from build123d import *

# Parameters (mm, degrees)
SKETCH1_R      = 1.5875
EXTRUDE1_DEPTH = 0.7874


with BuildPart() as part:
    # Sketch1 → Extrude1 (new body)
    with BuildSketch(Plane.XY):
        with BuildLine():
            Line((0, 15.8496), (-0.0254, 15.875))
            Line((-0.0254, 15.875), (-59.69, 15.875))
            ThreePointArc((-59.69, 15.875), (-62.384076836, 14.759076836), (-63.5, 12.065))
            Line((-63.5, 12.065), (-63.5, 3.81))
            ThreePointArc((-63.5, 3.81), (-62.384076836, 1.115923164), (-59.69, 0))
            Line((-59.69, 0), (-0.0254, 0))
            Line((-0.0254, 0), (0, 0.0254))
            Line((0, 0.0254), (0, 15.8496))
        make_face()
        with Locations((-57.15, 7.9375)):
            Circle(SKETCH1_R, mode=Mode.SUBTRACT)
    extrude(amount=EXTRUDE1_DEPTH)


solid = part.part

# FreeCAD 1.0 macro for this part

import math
import FreeCAD as App
import Part
import Sketcher
from FreeCAD import Vector
Q = App.Units.Quantity

doc = App.newDocument("Part")
params = doc.addObject("Spreadsheet::Sheet", "Params")
for row, (alias, value) in enumerate([
    ("sketch1_radius", "0.15 in"),
    ("sketch1_diameter", "0.125 in"),
    ("sketch1_width", "2.349 in"),
    ("sketch1_height", "0.325 in"),
    ("pad1_length", "0.031 in"),
], start=1):
    params.set(f"A{row}", alias)
    params.set(f"B{row}", "=" + value)
    params.setAlias(f"B{row}", alias)

body = doc.addObject("PartDesign::Body", "Body")

sketch1 = body.newObject("Sketcher::SketchObject", "Sketch")
sketch1.AttachmentSupport = (doc.getObject("XY_Plane"), [""])
sketch1.MapMode = "FlatFace"
sketch1.addGeometry([
    Part.LineSegment(Vector(0, 15.85, 0), Vector(-0.025, 15.875, 0)),
    Part.LineSegment(Vector(-0.025, 15.875, 0), Vector(-59.69, 15.875, 0)),
    Part.ArcOfCircle(Part.Circle(Vector(-59.69, 12.065, 0), Vector(0, 0, 1), 3.81), math.radians(90), math.radians(180)),
    Part.LineSegment(Vector(-63.5, 12.065, 0), Vector(-63.5, 3.81, 0)),
    Part.ArcOfCircle(Part.Circle(Vector(-59.69, 3.81, 0), Vector(0, 0, 1), 3.81), math.radians(-180), math.radians(-90)),
    Part.LineSegment(Vector(-59.69, 0, 0), Vector(-0.025, 0, 0)),
    Part.LineSegment(Vector(-0.025, 0, 0), Vector(0, 0.025, 0)),
    Part.LineSegment(Vector(0, 0.025, 0), Vector(0, 15.85, 0)),
    Part.Circle(Vector(-57.15, 7.938, 0), Vector(0, 0, 1), 1.587),
], False)
sketch1.addConstraint([
    Sketcher.Constraint("Coincident", 0, 2, 1, 1),
    Sketcher.Constraint("Tangent", 1, 2, 2, 1),
    Sketcher.Constraint("Tangent", 2, 2, 3, 1),
    Sketcher.Constraint("Tangent", 3, 2, 4, 1),
    Sketcher.Constraint("Tangent", 4, 2, 5, 1),
    Sketcher.Constraint("Coincident", 5, 2, 6, 1),
    Sketcher.Constraint("Coincident", 6, 2, 7, 1),
    Sketcher.Constraint("Coincident", 7, 2, 0, 1),
    Sketcher.Constraint("Horizontal", 1),
    Sketcher.Constraint("Vertical", 3),
    Sketcher.Constraint("Horizontal", 5),
    Sketcher.Constraint("Vertical", 7),
    Sketcher.Constraint("Equal", 2, 4),
    Sketcher.Constraint("PointOnObject", 4, 2, -1),
    Sketcher.Constraint("PointOnObject", 6, 2, -2),
    Sketcher.Constraint("Perpendicular", 0, 6),
    Sketcher.Constraint("Vertical", 0, 2, 5, 2),
    Sketcher.Constraint("Equal", 0, 6),
    Sketcher.Constraint("Radius", 2, Q("0.15 in")),
    Sketcher.Constraint("Diameter", 8, Q("0.125 in")),
    Sketcher.Constraint("DistanceX", 2, 2, -1, 1, Q("2.5 in")),
    Sketcher.Constraint("DistanceX", 2, 3, 8, 3, Q("0.1 in")),
    Sketcher.Constraint("DistanceX", 1, 2, 1, 1, Q("2.349 in")),
    Sketcher.Constraint("DistanceY", 3, 2, 3, 1, Q("0.325 in")),
    Sketcher.Constraint("DistanceY", -1, 1, 8, 3, Q("0.3125 in")),
])
sketch1.setExpression("Constraints[18]", "Params.sketch1_radius")
sketch1.setExpression("Constraints[19]", "Params.sketch1_diameter")
sketch1.setExpression("Constraints[22]", "Params.sketch1_width")
sketch1.setExpression("Constraints[23]", "Params.sketch1_height")
pad1 = body.newObject("PartDesign::Pad", "Pad")
pad1.Profile = sketch1
pad1.setExpression("Length", "Params.pad1_length")

doc.recompute()
